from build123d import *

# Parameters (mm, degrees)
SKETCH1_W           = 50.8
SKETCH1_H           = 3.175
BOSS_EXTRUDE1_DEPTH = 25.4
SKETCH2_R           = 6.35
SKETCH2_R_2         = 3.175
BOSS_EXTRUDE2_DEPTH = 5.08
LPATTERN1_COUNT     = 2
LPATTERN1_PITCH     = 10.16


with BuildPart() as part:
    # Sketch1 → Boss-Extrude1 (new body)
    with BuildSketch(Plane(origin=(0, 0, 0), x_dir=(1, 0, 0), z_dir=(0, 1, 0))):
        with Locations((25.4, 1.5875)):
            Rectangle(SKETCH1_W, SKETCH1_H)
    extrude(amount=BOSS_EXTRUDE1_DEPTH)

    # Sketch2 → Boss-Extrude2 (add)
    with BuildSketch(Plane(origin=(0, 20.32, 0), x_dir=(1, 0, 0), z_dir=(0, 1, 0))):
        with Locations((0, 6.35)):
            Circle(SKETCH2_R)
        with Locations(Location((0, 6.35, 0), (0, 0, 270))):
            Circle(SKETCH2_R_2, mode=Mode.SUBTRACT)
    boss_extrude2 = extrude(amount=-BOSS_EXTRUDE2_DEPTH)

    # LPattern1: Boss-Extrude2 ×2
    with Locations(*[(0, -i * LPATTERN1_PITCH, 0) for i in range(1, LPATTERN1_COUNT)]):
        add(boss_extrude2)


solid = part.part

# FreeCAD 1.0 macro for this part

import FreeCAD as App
import Part
import Sketcher

V = App.Vector
Q = App.Units.Quantity

doc = App.newDocument("Part")
params = doc.addObject("Spreadsheet::Sheet", "Params")
for row, (alias, value) in enumerate([
    ("sketch1_width", "2 in"),
    ("sketch1_height", "0.125 in"),
    ("pad1_length", "1 in"),
    ("sketch2_diameter", "0.5 in"),
    ("sketch2_diameter2", "0.25 in"),
    ("pad2_length", "0.2 in"),
    ("linearpattern_pitch", "0.4 in"),
], start=1):
    params.set(f"A{row}", alias)
    params.set(f"B{row}", "=" + value)
    params.setAlias(f"B{row}", alias)

body = doc.addObject("PartDesign::Body", "Body")

# Sketch on XZ plane
sketch1 = body.newObject("Sketcher::SketchObject", "Sketch")
sketch1.AttachmentSupport = (doc.getObject("XZ_Plane"), [""])
sketch1.MapMode = "FlatFace"
sketch1.addGeometry([
    Part.LineSegment(V(0, -3.2, 0), V(0, 0, 0)),
    Part.LineSegment(V(0, 0, 0), V(50.8, 0, 0)),
    Part.LineSegment(V(50.8, 0, 0), V(50.8, -3.2, 0)),
    Part.LineSegment(V(50.8, -3.2, 0), V(0, -3.2, 0)),
], False)
sketch1.addConstraint([
    Sketcher.Constraint("Coincident", 0, 2, 1, 1),
    Sketcher.Constraint("Coincident", 1, 2, 2, 1),
    Sketcher.Constraint("Coincident", 2, 2, 3, 1),
    Sketcher.Constraint("Coincident", 3, 2, 0, 1),
    Sketcher.Constraint("Vertical", 0),
    Sketcher.Constraint("Horizontal", 1),
    Sketcher.Constraint("Vertical", 2),
    Sketcher.Constraint("Horizontal", 3),
    Sketcher.Constraint("Coincident", 0, 2, -1, 1),
    Sketcher.Constraint("DistanceX", 1, 1, 1, 2, Q("2 in")),
    Sketcher.Constraint("DistanceY", 0, 1, 0, 2, Q("0.125 in")),
])
sketch1.setExpression("Constraints[9]", "Params.sketch1_width")
sketch1.setExpression("Constraints[10]", "Params.sketch1_height")
pad1 = body.newObject("PartDesign::Pad", "Pad")
pad1.Profile = sketch1
pad1.setExpression("Length", "Params.pad1_length")
pad1.Reversed = True

# Sketch on XZ plane
sketch2 = body.newObject("Sketcher::SketchObject", "Sketch001")
sketch2.AttachmentSupport = (doc.getObject("XZ_Plane"), [""])
sketch2.MapMode = "FlatFace"
sketch2.AttachmentOffset = App.Placement(V(0, 0, -0.8 * 25.4), App.Rotation())
sketch2.addGeometry([
    Part.Circle(V(0, -6.3, 0), V(0, 0, 1), 6.3),
    Part.Circle(V(0, -6.3, 0), V(0, 0, 1), 3.2),
], False)
sketch2.addConstraint([
    Sketcher.Constraint("Coincident", 1, 3, 0, 3),
    Sketcher.Constraint("PointOnObject", 0, 3, -2),
    Sketcher.Constraint("Diameter", 0, Q("0.5 in")),
    Sketcher.Constraint("Diameter", 1, Q("0.25 in")),
    Sketcher.Constraint("DistanceY", 0, 3, -1, 1, Q("0.25 in")),
])
sketch2.setExpression("Constraints[2]", "Params.sketch2_diameter")
sketch2.setExpression("Constraints[3]", "Params.sketch2_diameter2")
pad2 = body.newObject("PartDesign::Pad", "Pad001")
pad2.Profile = sketch2
pad2.setExpression("Length", "Params.pad2_length")
doc.recompute()

linearpattern = body.newObject("PartDesign::LinearPattern", "LinearPattern")
linearpattern.Originals = [pad2]
linearpattern.Direction = (doc.getObject("Y_Axis"), [""])
linearpattern.Mode = "offset"
linearpattern.setExpression("Offset", "Params.linearpattern_pitch")
linearpattern.Occurrences = 2
linearpattern.Reversed = True
body.Tip = linearpattern

doc.recompute()
